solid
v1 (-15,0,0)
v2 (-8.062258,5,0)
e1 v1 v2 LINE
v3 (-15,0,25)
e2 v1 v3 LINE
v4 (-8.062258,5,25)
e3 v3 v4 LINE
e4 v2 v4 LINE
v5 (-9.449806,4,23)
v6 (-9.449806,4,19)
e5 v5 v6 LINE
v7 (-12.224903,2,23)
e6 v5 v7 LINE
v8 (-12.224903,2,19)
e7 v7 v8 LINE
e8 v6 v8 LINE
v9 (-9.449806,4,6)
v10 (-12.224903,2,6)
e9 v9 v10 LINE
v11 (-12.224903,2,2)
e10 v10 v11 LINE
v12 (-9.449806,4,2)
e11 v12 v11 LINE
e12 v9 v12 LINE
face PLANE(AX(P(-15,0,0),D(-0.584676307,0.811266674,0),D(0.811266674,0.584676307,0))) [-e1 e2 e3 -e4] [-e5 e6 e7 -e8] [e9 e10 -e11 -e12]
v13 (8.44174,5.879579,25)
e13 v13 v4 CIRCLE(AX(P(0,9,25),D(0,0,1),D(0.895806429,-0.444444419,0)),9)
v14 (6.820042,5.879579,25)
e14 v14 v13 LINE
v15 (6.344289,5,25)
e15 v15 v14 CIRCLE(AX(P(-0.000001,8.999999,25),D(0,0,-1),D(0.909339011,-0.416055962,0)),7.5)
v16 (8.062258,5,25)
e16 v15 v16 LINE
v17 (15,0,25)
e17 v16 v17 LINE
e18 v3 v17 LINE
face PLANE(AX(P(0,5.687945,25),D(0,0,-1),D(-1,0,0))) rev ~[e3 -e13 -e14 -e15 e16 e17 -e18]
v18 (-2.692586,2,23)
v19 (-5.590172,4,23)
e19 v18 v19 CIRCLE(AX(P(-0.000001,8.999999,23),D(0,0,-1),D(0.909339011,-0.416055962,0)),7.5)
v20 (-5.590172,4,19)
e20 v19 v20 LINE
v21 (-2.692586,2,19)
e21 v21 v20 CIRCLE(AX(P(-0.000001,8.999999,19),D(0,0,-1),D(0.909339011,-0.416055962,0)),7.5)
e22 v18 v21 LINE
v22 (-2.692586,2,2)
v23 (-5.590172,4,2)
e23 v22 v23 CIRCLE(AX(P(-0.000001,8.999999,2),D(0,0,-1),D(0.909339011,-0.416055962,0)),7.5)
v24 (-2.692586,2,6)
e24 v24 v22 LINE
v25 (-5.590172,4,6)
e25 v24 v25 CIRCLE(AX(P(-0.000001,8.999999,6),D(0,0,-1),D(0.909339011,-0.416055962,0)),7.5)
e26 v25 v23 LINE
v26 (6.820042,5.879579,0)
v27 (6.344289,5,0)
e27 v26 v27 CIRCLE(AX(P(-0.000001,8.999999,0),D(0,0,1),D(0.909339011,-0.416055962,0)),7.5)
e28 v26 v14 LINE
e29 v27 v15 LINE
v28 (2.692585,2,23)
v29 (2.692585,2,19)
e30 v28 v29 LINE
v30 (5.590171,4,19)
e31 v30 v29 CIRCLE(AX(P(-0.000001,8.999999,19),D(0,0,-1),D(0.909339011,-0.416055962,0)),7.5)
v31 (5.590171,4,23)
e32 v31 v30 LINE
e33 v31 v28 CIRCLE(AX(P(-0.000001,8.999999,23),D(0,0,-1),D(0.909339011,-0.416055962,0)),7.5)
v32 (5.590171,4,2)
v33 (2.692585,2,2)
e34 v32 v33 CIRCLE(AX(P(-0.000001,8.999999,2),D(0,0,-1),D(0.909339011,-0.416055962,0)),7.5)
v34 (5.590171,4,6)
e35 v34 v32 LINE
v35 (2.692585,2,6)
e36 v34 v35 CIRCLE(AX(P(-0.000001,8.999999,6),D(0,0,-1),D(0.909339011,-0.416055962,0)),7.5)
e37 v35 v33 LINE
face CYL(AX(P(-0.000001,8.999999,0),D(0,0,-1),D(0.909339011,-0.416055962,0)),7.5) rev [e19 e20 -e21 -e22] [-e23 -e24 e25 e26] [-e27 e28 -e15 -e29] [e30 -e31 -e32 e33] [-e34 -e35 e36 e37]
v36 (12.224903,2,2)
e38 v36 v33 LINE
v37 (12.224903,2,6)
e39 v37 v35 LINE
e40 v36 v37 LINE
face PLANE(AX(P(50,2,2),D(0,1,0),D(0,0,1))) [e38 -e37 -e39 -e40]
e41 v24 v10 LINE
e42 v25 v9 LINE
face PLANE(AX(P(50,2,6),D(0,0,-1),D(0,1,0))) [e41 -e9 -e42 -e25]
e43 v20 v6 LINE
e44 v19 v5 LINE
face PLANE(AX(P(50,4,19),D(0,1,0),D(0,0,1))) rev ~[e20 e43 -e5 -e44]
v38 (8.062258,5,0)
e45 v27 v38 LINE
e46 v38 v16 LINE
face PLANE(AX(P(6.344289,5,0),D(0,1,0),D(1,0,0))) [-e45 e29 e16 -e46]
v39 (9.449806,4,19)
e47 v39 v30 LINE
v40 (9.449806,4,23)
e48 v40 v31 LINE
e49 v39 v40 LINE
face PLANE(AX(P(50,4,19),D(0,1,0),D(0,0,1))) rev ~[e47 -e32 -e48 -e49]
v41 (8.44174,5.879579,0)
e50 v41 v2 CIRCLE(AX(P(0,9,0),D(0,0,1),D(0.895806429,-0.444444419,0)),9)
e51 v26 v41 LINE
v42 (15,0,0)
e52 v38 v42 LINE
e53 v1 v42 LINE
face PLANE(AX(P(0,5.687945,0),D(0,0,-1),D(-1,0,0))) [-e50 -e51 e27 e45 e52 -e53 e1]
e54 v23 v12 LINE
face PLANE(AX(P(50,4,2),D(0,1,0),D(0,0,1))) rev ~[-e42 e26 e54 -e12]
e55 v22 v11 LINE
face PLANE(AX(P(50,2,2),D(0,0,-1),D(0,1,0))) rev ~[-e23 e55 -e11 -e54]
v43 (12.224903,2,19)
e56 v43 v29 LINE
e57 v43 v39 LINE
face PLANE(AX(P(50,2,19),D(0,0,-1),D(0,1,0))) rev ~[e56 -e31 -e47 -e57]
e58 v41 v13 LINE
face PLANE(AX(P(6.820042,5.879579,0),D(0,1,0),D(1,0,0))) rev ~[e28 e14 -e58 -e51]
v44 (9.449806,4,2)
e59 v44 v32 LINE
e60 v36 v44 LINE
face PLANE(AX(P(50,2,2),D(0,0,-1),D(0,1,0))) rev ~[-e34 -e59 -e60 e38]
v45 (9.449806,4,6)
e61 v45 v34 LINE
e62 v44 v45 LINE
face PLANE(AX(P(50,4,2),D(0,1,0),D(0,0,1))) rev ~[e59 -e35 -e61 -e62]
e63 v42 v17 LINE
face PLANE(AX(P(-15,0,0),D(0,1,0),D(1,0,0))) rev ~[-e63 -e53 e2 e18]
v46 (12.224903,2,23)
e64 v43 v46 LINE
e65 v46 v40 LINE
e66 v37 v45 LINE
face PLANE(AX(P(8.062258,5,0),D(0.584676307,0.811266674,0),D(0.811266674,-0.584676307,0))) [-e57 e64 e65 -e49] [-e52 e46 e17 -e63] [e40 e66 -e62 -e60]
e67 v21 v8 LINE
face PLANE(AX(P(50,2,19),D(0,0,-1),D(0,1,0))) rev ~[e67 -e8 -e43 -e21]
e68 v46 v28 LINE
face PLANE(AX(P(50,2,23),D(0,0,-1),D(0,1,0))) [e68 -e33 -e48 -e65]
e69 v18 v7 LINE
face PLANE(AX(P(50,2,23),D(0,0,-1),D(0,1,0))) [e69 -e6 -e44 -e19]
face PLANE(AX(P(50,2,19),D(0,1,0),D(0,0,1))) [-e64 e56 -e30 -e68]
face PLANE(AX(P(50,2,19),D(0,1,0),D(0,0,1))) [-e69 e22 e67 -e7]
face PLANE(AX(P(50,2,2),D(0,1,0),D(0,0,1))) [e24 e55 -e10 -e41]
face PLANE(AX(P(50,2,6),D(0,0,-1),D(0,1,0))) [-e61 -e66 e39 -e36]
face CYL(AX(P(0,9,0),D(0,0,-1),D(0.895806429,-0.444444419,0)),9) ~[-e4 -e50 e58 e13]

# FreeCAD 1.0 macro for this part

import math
import FreeCAD as App
import Part
import Sketcher
from FreeCAD import Vector
Q = App.Units.Quantity

doc = App.newDocument("Part")
body = doc.addObject("PartDesign::Body", "Body")

# Sketch on XY plane
sketch1 = body.newObject("Sketcher::SketchObject", "Sketch")
sketch1.AttachmentSupport = (doc.getObject("XY_Plane"), [""])
sketch1.MapMode = "FlatFace"
sketch1.addGeometry(Part.LineSegment(Vector(-8.062258, 5, 0), Vector(-15, 0, 0)), False)
sketch1.addGeometry(Part.LineSegment(Vector(-15, 0, 0), Vector(15, 0, 0)), False)
sketch1.addGeometry(Part.LineSegment(Vector(15, 0, 0), Vector(8.062258, 5, 0)), False)
sketch1.addGeometry(Part.ArcOfCircle(Part.Circle(Vector(0, 9, 0), Vector(0, 0, 1), 9), math.radians(-26.387798), math.radians(206.387798)), False)
sketch1.addConstraint(Sketcher.Constraint("Coincident", 0, 2, 1, 1))
sketch1.addConstraint(Sketcher.Constraint("Coincident", 1, 2, 2, 1))
sketch1.addConstraint(Sketcher.Constraint("Coincident", 2, 2, 3, 1))
sketch1.addConstraint(Sketcher.Constraint("Coincident", 3, 2, 0, 1))
sketch1.addConstraint(Sketcher.Constraint("Horizontal", 1))
sketch1.addConstraint(Sketcher.Constraint("Symmetric", 0, 2, 1, 2, -1, 1))
sketch1.addConstraint(Sketcher.Constraint("Symmetric", 2, 2, 3, 2, -2))
sketch1.addConstraint(Sketcher.Constraint("Radius", 3, Q("9 mm")))
sketch1.addConstraint(Sketcher.Constraint("DistanceX", 1, 1, 1, 2, Q("30 mm")))
sketch1.addConstraint(Sketcher.Constraint("DistanceY", -1, 1, 3, 3, Q("9 mm")))
sketch1.addConstraint(Sketcher.Constraint("DistanceY", -1, 1, 2, 2, Q("5 mm")))
pad1 = body.newObject("PartDesign::Pad", "Pad")
pad1.Profile = sketch1
pad1.Length = 25

# Sketch on XY plane
sketch2 = body.newObject("Sketcher::SketchObject", "Sketch001")
sketch2.AttachmentSupport = (doc.getObject("XY_Plane"), [""])
sketch2.MapMode = "FlatFace"
sketch2.addGeometry(Part.ArcOfCircle(Part.Circle(Vector(-0.000001, 8.999999, 0), Vector(0, 0, 1), 7.5), math.radians(-24.585833), math.radians(327.769059)), False)
sketch2.addGeometry(Part.LineSegment(Vector(6.344289, 5, 0), Vector(8.062258, 5, 0)), False)
sketch2.addGeometry(Part.ArcOfCircle(Part.Circle(Vector(0.000016, 8.999991, 0), Vector(0, 0, 1), 8.999982), math.radians(-26.387797), math.radians(-20.286411)), False)
sketch2.addGeometry(Part.LineSegment(Vector(8.44174, 5.879579, 0), Vector(6.820042, 5.879579, 0)), False)
sketch2.addConstraint(Sketcher.Constraint("Coincident", 0, 2, 1, 1))
sketch2.addConstraint(Sketcher.Constraint("Coincident", 1, 2, 2, 1))
sketch2.addConstraint(Sketcher.Constraint("Coincident", 2, 2, 3, 1))
sketch2.addConstraint(Sketcher.Constraint("Coincident", 3, 2, 0, 1))
sketch2.addConstraint(Sketcher.Constraint("Horizontal", 1))
sketch2.addConstraint(Sketcher.Constraint("Horizontal", 3))
sketch2.addConstraint(Sketcher.Constraint("PointOnObject", 0, 3, -2))
sketch2.addConstraint(Sketcher.Constraint("Radius", 0, Q("7.5 mm")))
sketch2.addConstraint(Sketcher.Constraint("DistanceY", -1, 1, 0, 3, Q("8.999999 mm")))
sketch2.addConstraint(Sketcher.Constraint("DistanceY", -1, 1, 0, 2, Q("5 mm")))
sketch2.addConstraint(Sketcher.Constraint("Radius", 2, Q("8.999982 mm")))
sketch2.addConstraint(Sketcher.Constraint("DistanceX", 1, 1, 1, 2, Q("1.717969 mm")))
sketch2.addConstraint(Sketcher.Constraint("DistanceX", 3, 2, 2, 2, Q("1.621698 mm")))
sketch2.addConstraint(Sketcher.Constraint("DistanceY", -1, 1, 2, 3, Q("8.999991 mm")))
pocket1 = body.newObject("PartDesign::Pocket", "Pocket")
pocket1.Profile = sketch2
pocket1.Type = "ThroughAll"
pocket1.Reversed = True

# Sketch on YZ plane
sketch3 = body.newObject("Sketcher::SketchObject", "Sketch002")
sketch3.AttachmentSupport = (doc.getObject("YZ_Plane"), [""])
sketch3.MapMode = "FlatFace"
sketch3.AttachmentOffset = App.Placement(Vector(0, 0, 50), App.Rotation())
sketch3.addGeometry(Part.LineSegment(Vector(2, 23, 0), Vector(2, 19, 0)), False)
sketch3.addGeometry(Part.LineSegment(Vector(2, 19, 0), Vector(4, 19, 0)), False)
sketch3.addGeometry(Part.LineSegment(Vector(4, 19, 0), Vector(4, 23, 0)), False)
sketch3.addGeometry(Part.LineSegment(Vector(4, 23, 0), Vector(2, 23, 0)), False)
sketch3.addGeometry(Part.LineSegment(Vector(2, 6, 0), Vector(2, 2, 0)), False)
sketch3.addGeometry(Part.LineSegment(Vector(2, 2, 0), Vector(4, 2, 0)), False)
sketch3.addGeometry(Part.LineSegment(Vector(4, 2, 0), Vector(4, 6, 0)), False)
sketch3.addGeometry(Part.LineSegment(Vector(4, 6, 0), Vector(2, 6, 0)), False)
sketch3.addConstraint(Sketcher.Constraint("Coincident", 0, 2, 1, 1))
sketch3.addConstraint(Sketcher.Constraint("Coincident", 1, 2, 2, 1))
sketch3.addConstraint(Sketcher.Constraint("Coincident", 2, 2, 3, 1))
sketch3.addConstraint(Sketcher.Constraint("Coincident", 3, 2, 0, 1))
sketch3.addConstraint(Sketcher.Constraint("Coincident", 4, 2, 5, 1))
sketch3.addConstraint(Sketcher.Constraint("Coincident", 5, 2, 6, 1))
sketch3.addConstraint(Sketcher.Constraint("Coincident", 6, 2, 7, 1))
sketch3.addConstraint(Sketcher.Constraint("Coincident", 7, 2, 4, 1))
sketch3.addConstraint(Sketcher.Constraint("Vertical", 0))
sketch3.addConstraint(Sketcher.Constraint("Horizontal", 1))
sketch3.addConstraint(Sketcher.Constraint("Vertical", 2))
sketch3.addConstraint(Sketcher.Constraint("Horizontal", 3))
sketch3.addConstraint(Sketcher.Constraint("Vertical", 4))
sketch3.addConstraint(Sketcher.Constraint("Horizontal", 5))
sketch3.addConstraint(Sketcher.Constraint("Vertical", 6))
sketch3.addConstraint(Sketcher.Constraint("Horizontal", 7))
sketch3.addConstraint(Sketcher.Constraint("Vertical", 3, 2, 4, 2))
sketch3.addConstraint(Sketcher.Constraint("Vertical", 2, 2, 5, 2))
sketch3.addConstraint(Sketcher.Constraint("Equal", 2, 4))
sketch3.addConstraint(Sketcher.Constraint("DistanceX", 1, 1, 1, 2, Q("2 mm")))
sketch3.addConstraint(Sketcher.Constraint("DistanceY", 0, 2, 0, 1, Q("4 mm")))
sketch3.addConstraint(Sketcher.Constraint("DistanceX", -1, 1, 0, 2, Q("2 mm")))
sketch3.addConstraint(Sketcher.Constraint("DistanceY", -1, 1, 0, 2, Q("19 mm")))
sketch3.addConstraint(Sketcher.Constraint("DistanceY", -1, 1, 4, 2, Q("2 mm")))
pocket2 = body.newObject("PartDesign::Pocket", "Pocket001")
pocket2.Profile = sketch3
pocket2.Type = "ThroughAll"

doc.recompute()
